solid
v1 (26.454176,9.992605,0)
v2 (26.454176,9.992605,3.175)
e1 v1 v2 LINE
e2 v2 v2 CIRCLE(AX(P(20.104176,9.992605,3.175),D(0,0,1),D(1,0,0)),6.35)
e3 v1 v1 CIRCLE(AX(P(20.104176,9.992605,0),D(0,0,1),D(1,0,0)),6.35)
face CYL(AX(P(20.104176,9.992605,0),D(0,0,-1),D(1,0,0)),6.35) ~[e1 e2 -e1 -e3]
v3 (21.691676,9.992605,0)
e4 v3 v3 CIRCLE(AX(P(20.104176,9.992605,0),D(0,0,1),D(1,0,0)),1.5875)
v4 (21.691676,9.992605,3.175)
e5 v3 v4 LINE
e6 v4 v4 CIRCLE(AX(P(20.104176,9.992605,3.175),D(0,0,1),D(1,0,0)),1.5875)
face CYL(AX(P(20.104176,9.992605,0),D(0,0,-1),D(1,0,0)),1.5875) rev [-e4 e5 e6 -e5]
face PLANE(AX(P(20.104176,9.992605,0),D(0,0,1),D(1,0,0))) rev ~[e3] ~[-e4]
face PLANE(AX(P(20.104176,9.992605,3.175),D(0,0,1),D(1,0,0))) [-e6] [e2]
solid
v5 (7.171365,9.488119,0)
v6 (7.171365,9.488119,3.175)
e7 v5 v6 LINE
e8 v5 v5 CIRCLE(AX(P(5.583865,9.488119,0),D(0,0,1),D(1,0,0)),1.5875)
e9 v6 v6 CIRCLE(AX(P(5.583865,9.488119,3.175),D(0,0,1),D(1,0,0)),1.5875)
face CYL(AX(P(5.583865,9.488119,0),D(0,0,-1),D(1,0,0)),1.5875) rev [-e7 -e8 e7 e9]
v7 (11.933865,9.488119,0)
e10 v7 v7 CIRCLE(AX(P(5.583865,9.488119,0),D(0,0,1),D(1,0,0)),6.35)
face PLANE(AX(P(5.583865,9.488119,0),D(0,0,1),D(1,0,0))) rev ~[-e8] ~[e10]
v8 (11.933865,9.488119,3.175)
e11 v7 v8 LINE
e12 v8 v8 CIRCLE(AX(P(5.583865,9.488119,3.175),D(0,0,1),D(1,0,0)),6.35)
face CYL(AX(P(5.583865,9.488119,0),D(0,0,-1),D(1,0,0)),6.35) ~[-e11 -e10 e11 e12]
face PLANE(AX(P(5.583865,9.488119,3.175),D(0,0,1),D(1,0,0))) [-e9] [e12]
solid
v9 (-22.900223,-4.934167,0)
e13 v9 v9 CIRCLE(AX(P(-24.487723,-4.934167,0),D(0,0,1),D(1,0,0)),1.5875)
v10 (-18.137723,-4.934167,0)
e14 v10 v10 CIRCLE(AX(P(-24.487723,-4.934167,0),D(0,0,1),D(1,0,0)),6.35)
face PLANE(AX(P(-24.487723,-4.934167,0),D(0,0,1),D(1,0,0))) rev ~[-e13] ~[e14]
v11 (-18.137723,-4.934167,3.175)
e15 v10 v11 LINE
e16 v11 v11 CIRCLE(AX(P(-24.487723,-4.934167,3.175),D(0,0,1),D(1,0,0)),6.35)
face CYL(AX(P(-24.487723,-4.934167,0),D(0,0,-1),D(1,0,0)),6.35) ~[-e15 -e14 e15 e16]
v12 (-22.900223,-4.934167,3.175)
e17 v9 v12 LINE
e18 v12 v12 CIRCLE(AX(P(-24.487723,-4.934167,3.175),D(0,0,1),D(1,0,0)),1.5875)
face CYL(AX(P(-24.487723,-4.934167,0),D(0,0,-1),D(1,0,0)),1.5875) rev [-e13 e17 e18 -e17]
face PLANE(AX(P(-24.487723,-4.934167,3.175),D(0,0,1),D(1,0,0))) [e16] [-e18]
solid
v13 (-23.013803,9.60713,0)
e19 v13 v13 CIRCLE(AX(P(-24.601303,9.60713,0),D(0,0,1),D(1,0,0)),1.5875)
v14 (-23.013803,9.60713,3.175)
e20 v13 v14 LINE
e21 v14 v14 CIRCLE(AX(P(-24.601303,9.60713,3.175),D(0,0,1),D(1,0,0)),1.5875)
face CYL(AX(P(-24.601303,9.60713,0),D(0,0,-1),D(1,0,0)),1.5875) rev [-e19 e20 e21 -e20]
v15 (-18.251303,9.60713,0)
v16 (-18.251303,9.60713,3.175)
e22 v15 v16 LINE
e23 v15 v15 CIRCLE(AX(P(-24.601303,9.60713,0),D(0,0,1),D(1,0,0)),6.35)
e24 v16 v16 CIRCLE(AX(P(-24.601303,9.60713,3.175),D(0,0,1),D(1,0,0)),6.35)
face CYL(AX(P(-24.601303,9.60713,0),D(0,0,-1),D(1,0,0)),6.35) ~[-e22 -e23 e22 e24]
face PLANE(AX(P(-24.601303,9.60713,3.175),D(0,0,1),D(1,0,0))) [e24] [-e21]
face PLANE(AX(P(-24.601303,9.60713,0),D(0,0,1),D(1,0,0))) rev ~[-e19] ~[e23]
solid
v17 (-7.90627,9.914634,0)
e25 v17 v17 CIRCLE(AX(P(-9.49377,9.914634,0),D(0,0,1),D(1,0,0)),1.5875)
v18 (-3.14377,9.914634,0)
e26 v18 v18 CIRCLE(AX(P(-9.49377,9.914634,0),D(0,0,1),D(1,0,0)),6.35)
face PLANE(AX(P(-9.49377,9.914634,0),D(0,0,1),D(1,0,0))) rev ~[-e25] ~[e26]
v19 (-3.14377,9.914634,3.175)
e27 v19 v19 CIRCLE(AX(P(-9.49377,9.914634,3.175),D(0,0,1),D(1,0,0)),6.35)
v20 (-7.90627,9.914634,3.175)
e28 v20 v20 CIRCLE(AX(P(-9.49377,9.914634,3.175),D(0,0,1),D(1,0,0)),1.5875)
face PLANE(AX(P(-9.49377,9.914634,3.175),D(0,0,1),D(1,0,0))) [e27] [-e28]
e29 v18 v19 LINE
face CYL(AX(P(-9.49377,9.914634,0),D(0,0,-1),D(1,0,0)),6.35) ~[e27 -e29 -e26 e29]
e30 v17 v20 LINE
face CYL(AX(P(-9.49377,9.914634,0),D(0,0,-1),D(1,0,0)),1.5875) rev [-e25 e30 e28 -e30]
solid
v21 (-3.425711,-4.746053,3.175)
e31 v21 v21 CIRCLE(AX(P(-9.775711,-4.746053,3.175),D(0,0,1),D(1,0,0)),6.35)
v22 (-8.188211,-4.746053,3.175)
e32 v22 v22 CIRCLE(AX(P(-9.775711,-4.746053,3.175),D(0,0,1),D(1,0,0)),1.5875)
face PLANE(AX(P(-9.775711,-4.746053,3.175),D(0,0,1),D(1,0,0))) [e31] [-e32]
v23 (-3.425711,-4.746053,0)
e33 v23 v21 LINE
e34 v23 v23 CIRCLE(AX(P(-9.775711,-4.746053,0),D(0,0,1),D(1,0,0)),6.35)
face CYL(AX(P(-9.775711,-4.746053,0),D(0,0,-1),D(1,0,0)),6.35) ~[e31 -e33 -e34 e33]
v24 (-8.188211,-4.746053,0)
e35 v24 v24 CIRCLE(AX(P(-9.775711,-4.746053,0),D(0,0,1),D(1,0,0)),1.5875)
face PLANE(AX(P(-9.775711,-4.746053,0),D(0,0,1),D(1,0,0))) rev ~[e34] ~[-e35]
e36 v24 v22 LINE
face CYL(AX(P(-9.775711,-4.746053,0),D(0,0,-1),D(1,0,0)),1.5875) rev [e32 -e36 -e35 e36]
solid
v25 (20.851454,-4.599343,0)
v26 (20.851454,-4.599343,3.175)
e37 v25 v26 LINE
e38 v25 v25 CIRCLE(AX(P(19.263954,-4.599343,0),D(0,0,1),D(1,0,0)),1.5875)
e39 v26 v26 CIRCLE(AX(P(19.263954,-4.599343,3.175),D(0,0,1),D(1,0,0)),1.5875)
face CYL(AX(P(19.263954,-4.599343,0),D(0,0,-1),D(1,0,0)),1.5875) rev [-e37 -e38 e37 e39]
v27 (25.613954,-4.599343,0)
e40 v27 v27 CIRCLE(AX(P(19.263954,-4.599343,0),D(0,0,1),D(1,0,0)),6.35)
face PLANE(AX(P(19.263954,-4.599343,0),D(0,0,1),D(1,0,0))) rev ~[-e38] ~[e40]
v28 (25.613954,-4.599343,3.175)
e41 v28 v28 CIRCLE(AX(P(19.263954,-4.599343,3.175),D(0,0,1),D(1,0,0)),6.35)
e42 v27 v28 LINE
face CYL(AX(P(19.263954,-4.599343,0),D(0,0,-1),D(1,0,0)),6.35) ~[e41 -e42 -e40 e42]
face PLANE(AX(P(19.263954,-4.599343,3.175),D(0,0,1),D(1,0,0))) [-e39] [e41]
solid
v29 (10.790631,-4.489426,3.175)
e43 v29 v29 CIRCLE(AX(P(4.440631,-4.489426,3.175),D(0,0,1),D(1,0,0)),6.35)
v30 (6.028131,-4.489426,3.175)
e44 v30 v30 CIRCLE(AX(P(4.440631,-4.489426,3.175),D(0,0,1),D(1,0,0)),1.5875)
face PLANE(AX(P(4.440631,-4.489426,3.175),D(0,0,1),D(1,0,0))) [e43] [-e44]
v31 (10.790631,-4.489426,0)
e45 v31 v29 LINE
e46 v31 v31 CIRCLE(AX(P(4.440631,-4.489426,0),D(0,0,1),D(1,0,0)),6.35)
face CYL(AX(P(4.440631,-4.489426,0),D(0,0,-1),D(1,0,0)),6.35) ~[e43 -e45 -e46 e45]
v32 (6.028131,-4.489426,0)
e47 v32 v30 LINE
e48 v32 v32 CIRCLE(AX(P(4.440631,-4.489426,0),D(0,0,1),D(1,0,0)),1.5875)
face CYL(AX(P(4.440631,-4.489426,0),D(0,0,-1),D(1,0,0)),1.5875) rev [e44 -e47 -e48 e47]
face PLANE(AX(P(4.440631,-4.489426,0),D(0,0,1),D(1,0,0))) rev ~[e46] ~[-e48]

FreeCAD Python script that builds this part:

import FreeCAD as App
import Part
import Sketcher
from FreeCAD import Vector
Q = App.Units.Quantity

doc = App.newDocument("Part")
body = doc.addObject("PartDesign::Body", "Body")
body.AllowCompound = True

sketch1 = doc.addObject("Sketcher::SketchObject", "Sketch")
body.addObject(sketch1)
sketch1.AttachmentSupport = (doc.XY_Plane, [""])
sketch1.MapMode = "FlatFace"
sketch1.addGeometry(Part.Circle(Vector(-24.6, 9.6, 0), Vector(0, 0, 1), 6.3), False)
sketch1.addGeometry(Part.Circle(Vector(-24.6, 9.6, 0), Vector(0, 0, 1), 1.6), False)
sketch1.addGeometry(Part.Circle(Vector(-9.5, 9.9, 0), Vector(0, 0, 1), 6.3), False)
sketch1.addGeometry(Part.Circle(Vector(-9.5, 9.9, 0), Vector(0, 0, 1), 1.6), False)
sketch1.addGeometry(Part.Circle(Vector(5.6, 9.5, 0), Vector(0, 0, 1), 6.3), False)
sketch1.addGeometry(Part.Circle(Vector(5.6, 9.5, 0), Vector(0, 0, 1), 1.6), False)
sketch1.addGeometry(Part.Circle(Vector(20.1, 10, 0), Vector(0, 0, 1), 6.3), False)
sketch1.addGeometry(Part.Circle(Vector(20.1, 10, 0), Vector(0, 0, 1), 1.6), False)
sketch1.addGeometry(Part.Circle(Vector(-24.5, -4.9, 0), Vector(0, 0, 1), 6.3), False)
sketch1.addGeometry(Part.Circle(Vector(-24.5, -4.9, 0), Vector(0, 0, 1), 1.6), False)
sketch1.addGeometry(Part.Circle(Vector(4.4, -4.5, 0), Vector(0, 0, 1), 6.3), False)
sketch1.addGeometry(Part.Circle(Vector(4.4, -4.5, 0), Vector(0, 0, 1), 1.6), False)
sketch1.addGeometry(Part.Circle(Vector(-9.8, -4.7, 0), Vector(0, 0, 1), 6.3), False)
sketch1.addGeometry(Part.Circle(Vector(-9.8, -4.7, 0), Vector(0, 0, 1), 1.6), False)
sketch1.addGeometry(Part.Circle(Vector(19.3, -4.6, 0), Vector(0, 0, 1), 6.3), False)
sketch1.addGeometry(Part.Circle(Vector(19.3, -4.6, 0), Vector(0, 0, 1), 1.6), False)
sketch1.addConstraint(Sketcher.Constraint("Coincident", 1, 3, 0, 3))
sketch1.addConstraint(Sketcher.Constraint("Coincident", 3, 3, 2, 3))
sketch1.addConstraint(Sketcher.Constraint("Coincident", 5, 3, 4, 3))
sketch1.addConstraint(Sketcher.Constraint("Coincident", 7, 3, 6, 3))
sketch1.addConstraint(Sketcher.Constraint("Coincident", 9, 3, 8, 3))
sketch1.addConstraint(Sketcher.Constraint("Coincident", 11, 3, 10, 3))
sketch1.addConstraint(Sketcher.Constraint("Coincident", 13, 3, 12, 3))
sketch1.addConstraint(Sketcher.Constraint("Coincident", 15, 3, 14, 3))
sketch1.addConstraint(Sketcher.Constraint("Equal", 0, 2))
sketch1.addConstraint(Sketcher.Constraint("Equal", 1, 3))
sketch1.addConstraint(Sketcher.Constraint("Equal", 2, 4))
sketch1.addConstraint(Sketcher.Constraint("Equal", 3, 5))
sketch1.addConstraint(Sketcher.Constraint("Equal", 4, 6))
sketch1.addConstraint(Sketcher.Constraint("Equal", 5, 7))
sketch1.addConstraint(Sketcher.Constraint("Equal", 6, 8))
sketch1.addConstraint(Sketcher.Constraint("Equal", 7, 9))
sketch1.addConstraint(Sketcher.Constraint("Equal", 8, 10))
sketch1.addConstraint(Sketcher.Constraint("Equal", 9, 11))
sketch1.addConstraint(Sketcher.Constraint("Equal", 10, 12))
sketch1.addConstraint(Sketcher.Constraint("Equal", 11, 13))
sketch1.addConstraint(Sketcher.Constraint("Equal", 12, 14))
sketch1.addConstraint(Sketcher.Constraint("Equal", 13, 15))
sketch1.addConstraint(Sketcher.Constraint("Diameter", 0, Q("0.5 in")))
sketch1.addConstraint(Sketcher.Constraint("Diameter", 1, Q("0.125 in")))
sketch1.addConstraint(Sketcher.Constraint("DistanceX", 12, 3, 2, 3, Q("0.0111 in")))
sketch1.addConstraint(Sketcher.Constraint("DistanceY", 8, 3, 2, 3, Q("14.848801 mm")))
sketch1.addConstraint(Sketcher.Constraint("DistanceX", 2, 3, 10, 3, Q("13.934401 mm")))
sketch1.addConstraint(Sketcher.Constraint("DistanceY", -1, 1, 0, 3, Q("9.60713 mm")))
sketch1.addConstraint(Sketcher.Constraint("DistanceX", 2, 3, -1, 1, Q("9.49377 mm")))
sketch1.addConstraint(Sketcher.Constraint("DistanceY", -1, 1, 4, 3, Q("9.488119 mm")))
sketch1.addConstraint(Sketcher.Constraint("DistanceX", 0, 3, 4, 3, Q("30.185168 mm")))
sketch1.addConstraint(Sketcher.Constraint("DistanceX", 4, 3, 6, 3, Q("14.520311 mm")))
sketch1.addConstraint(Sketcher.Constraint("DistanceY", 2, 3, 6, 3, Q("0.077971 mm")))
sketch1.addConstraint(Sketcher.Constraint("DistanceX", 0, 3, 8, 3, Q("0.11358 mm")))
sketch1.addConstraint(Sketcher.Constraint("DistanceY", 10, 3, 2, 3, Q("14.40406 mm")))
sketch1.addConstraint(Sketcher.Constraint("DistanceX", 4, 3, 14, 3, Q("13.680089 mm")))
sketch1.addConstraint(Sketcher.Constraint("DistanceY", 14, 3, 4, 3, Q("14.087462 mm")))
sketch1.addConstraint(Sketcher.Constraint("DistanceX", 0, 3, -1, 1, Q("24.601303 mm")))
sketch1.addConstraint(Sketcher.Constraint("DistanceY", -1, 1, 2, 3, Q("9.914634 mm")))
sketch1.addConstraint(Sketcher.Constraint("DistanceY", 12, 3, -1, 1, Q("4.746053 mm")))
pad1 = doc.addObject("PartDesign::Pad", "Pad")
body.addObject(pad1)
pad1.Profile = sketch1
pad1.Length = Q("0.125 in")

doc.recompute()
